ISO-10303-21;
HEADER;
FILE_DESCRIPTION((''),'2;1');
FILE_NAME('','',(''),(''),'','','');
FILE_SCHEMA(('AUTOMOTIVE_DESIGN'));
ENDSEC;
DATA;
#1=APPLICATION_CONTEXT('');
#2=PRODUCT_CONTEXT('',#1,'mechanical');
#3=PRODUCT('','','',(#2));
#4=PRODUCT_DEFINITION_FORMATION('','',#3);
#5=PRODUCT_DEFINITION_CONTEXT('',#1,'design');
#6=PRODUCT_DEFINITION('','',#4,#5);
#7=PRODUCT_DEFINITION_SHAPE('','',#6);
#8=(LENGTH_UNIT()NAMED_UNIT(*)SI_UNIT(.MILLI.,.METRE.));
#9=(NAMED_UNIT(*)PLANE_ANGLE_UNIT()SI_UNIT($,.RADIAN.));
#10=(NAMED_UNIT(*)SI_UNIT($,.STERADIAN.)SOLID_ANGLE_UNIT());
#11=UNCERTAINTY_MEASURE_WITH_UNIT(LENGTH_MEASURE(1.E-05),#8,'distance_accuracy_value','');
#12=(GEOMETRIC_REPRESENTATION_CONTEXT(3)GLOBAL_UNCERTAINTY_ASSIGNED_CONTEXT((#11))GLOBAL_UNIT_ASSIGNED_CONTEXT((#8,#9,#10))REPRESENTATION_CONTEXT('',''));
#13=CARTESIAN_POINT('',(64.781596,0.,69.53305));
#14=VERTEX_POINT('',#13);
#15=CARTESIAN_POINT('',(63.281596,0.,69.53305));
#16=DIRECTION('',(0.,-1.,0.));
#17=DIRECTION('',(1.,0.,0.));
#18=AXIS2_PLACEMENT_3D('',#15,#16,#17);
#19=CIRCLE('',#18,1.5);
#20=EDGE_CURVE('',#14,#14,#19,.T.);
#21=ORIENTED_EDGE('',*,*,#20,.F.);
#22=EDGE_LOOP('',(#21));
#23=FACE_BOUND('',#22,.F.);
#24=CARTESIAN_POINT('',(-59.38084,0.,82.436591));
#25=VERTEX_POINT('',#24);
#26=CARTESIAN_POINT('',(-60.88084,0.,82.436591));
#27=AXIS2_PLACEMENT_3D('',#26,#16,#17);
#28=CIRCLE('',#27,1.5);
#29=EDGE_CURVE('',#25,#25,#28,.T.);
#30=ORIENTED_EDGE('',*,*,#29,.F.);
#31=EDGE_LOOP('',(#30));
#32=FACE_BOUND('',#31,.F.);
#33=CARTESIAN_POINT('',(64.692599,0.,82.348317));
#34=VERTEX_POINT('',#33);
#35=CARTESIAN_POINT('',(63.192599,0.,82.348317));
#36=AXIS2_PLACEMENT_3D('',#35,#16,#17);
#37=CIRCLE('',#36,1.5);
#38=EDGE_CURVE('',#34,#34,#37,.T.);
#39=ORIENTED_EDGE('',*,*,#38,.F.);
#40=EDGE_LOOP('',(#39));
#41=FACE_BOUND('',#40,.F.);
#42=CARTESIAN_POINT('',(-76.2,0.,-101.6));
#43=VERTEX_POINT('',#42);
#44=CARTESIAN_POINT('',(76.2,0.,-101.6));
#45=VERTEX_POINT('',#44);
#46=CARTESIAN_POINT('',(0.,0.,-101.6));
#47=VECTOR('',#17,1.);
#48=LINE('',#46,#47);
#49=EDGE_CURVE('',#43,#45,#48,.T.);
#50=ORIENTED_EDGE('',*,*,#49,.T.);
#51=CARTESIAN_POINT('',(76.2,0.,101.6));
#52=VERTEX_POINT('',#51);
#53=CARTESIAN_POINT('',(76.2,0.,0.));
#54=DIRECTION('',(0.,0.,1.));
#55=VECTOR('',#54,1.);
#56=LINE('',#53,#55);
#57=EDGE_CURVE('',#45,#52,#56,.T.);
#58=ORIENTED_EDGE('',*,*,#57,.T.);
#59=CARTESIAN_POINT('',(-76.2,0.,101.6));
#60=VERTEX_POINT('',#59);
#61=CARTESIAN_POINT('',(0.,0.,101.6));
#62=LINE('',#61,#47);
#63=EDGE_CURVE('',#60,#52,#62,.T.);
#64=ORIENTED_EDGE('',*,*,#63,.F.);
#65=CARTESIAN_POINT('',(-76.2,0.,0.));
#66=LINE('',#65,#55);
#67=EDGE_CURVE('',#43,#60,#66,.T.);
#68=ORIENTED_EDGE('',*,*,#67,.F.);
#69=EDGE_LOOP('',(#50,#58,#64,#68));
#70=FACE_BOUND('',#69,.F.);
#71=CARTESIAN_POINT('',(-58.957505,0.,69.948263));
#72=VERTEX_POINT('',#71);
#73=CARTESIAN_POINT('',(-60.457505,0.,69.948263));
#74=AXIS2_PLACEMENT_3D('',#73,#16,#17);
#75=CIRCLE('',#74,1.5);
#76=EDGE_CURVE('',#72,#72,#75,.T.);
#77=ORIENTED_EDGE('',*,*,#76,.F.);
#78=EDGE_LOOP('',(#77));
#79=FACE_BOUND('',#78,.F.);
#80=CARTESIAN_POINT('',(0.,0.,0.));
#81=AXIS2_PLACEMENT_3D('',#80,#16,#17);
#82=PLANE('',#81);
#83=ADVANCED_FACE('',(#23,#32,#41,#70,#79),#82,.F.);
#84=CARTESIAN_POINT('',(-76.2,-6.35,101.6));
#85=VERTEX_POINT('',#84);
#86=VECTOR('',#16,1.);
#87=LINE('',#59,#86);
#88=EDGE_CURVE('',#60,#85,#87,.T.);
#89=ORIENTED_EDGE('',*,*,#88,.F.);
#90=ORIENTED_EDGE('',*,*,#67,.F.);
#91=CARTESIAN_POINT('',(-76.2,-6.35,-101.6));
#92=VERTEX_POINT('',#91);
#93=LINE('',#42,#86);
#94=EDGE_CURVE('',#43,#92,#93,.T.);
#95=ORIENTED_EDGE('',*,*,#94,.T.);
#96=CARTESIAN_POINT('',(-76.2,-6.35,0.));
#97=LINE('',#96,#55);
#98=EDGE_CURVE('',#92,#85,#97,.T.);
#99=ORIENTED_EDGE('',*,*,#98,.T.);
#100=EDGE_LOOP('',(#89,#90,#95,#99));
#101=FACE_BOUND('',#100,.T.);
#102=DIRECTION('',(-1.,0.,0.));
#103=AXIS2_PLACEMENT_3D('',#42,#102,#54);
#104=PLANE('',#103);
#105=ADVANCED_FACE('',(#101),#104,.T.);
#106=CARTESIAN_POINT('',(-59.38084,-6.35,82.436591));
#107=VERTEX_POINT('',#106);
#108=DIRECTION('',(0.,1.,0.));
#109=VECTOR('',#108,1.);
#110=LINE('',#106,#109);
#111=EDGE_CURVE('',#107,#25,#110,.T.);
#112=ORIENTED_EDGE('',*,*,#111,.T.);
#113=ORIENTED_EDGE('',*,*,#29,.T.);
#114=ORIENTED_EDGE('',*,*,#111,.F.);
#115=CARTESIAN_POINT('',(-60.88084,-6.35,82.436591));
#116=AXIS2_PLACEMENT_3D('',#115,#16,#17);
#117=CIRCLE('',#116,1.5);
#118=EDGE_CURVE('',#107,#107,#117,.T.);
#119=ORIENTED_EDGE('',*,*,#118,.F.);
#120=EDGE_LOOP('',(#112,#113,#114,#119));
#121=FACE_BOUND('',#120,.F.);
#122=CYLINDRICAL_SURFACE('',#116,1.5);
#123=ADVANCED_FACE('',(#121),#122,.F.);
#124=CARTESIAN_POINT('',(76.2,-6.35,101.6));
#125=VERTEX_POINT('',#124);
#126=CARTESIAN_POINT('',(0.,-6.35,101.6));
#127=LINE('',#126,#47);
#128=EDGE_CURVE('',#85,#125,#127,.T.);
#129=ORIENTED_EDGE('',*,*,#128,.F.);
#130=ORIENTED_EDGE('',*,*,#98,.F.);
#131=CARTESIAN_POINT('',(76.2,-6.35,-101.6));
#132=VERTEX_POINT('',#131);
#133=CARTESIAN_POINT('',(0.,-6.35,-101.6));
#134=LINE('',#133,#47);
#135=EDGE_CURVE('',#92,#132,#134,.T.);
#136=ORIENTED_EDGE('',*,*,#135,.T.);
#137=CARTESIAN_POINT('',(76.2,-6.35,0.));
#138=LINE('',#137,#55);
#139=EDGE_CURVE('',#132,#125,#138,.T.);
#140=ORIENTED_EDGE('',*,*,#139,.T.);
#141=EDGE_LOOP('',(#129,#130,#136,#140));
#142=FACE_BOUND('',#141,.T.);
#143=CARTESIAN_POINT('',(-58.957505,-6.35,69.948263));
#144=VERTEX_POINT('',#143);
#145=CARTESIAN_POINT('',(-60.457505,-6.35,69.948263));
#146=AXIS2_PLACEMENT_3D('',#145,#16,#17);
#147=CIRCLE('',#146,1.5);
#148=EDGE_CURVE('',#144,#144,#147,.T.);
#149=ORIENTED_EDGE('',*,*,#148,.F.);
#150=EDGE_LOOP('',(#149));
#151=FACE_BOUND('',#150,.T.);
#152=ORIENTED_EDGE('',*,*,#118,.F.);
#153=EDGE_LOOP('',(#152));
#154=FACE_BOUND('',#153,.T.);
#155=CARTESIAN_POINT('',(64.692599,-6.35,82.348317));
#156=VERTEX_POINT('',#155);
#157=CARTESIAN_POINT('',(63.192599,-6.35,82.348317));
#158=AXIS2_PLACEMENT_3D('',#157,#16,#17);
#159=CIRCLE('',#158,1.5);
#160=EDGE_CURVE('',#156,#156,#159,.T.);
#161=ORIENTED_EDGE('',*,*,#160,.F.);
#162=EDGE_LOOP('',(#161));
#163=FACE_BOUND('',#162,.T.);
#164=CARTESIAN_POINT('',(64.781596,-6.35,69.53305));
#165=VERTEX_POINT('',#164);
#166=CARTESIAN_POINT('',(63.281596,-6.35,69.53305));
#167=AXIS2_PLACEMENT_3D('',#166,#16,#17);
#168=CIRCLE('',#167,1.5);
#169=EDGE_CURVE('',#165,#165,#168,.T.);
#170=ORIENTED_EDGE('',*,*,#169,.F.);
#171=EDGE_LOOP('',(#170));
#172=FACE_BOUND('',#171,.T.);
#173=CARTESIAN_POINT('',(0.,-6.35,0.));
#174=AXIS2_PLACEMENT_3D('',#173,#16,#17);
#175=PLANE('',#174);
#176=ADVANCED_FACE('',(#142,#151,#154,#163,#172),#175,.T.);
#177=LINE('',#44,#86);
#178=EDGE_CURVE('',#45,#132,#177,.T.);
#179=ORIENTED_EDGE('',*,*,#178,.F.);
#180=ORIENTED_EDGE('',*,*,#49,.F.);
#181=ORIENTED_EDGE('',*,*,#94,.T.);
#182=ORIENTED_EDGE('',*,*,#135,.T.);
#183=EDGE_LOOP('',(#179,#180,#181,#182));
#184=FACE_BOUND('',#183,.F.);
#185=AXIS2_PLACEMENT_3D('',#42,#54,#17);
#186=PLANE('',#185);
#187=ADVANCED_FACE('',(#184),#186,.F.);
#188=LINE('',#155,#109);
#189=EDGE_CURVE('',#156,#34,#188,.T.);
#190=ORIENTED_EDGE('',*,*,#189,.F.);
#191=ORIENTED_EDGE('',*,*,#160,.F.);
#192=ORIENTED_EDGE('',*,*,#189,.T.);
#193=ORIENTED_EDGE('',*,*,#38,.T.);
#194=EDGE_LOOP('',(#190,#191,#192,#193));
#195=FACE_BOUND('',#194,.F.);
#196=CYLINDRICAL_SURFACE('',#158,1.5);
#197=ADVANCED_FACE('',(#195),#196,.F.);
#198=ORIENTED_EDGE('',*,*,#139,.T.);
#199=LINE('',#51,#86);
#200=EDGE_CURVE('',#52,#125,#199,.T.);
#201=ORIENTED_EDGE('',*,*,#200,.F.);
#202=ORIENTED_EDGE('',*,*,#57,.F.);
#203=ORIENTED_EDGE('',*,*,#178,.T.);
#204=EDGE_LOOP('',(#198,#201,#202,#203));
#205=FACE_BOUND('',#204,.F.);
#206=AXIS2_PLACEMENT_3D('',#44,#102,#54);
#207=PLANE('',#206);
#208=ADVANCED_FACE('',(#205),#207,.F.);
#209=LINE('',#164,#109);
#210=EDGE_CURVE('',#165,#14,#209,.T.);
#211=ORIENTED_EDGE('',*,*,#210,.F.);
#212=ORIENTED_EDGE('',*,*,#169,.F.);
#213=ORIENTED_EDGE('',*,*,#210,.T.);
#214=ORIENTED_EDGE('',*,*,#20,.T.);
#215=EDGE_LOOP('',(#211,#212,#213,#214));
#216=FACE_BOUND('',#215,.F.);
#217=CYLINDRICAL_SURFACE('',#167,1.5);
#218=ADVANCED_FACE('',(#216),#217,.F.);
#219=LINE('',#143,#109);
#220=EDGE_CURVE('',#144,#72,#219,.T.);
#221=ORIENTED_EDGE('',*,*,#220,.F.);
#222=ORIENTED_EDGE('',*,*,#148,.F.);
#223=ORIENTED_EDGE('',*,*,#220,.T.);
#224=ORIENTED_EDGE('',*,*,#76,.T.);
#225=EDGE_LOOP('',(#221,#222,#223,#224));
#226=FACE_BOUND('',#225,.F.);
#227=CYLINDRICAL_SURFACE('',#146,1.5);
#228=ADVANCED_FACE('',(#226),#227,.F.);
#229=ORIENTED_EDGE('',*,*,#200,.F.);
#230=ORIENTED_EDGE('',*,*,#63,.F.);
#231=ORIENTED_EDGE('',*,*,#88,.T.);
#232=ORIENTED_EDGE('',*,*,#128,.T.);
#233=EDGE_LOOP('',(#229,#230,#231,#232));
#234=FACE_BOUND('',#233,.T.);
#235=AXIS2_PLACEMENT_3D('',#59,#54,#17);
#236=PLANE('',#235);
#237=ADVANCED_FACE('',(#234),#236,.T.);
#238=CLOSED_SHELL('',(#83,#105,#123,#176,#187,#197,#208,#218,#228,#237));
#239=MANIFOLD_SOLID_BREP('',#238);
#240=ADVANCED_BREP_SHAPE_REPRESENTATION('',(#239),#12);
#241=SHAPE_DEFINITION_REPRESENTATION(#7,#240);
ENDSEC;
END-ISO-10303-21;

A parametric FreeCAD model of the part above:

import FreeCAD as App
import Part
import Sketcher

V = App.Vector
Q = App.Units.Quantity

doc = App.newDocument("Part")
params = doc.addObject("Spreadsheet::Sheet", "Params")
for row, (alias, value) in enumerate([
    ("sketch1_width", "6 in"),
    ("sketch1_height", "8 in"),
    ("pad1_length", "0.25 in"),
    ("pocket1_length", "0.25 in"),
    ("pocket2_length", "0.25 in"),
    ("pocket3_length", "0.25 in"),
    ("pocket4_length", "0.25 in"),
], start=1):
    params.set(f"A{row}", alias)
    params.set(f"B{row}", "=" + value)
    params.setAlias(f"B{row}", alias)

body = doc.addObject("PartDesign::Body", "Body")

sketch1 = body.newObject("Sketcher::SketchObject", "Sketch")
sketch1.AttachmentSupport = (doc.getObject("XZ_Plane"), [""])
sketch1.MapMode = "FlatFace"
sketch1.addGeometry([
    Part.LineSegment(V(-76.2, 101.6, 0), V(-76.2, -101.6, 0)),
    Part.LineSegment(V(-76.2, -101.6, 0), V(76.2, -101.6, 0)),
    Part.LineSegment(V(76.2, -101.6, 0), V(76.2, 101.6, 0)),
    Part.LineSegment(V(76.2, 101.6, 0), V(-76.2, 101.6, 0)),
], False)
sketch1.addConstraint([
    Sketcher.Constraint("Coincident", 0, 2, 1, 1),
    Sketcher.Constraint("Coincident", 1, 2, 2, 1),
    Sketcher.Constraint("Coincident", 2, 2, 3, 1),
    Sketcher.Constraint("Coincident", 3, 2, 0, 1),
    Sketcher.Constraint("Vertical", 0),
    Sketcher.Constraint("Horizontal", 1),
    Sketcher.Constraint("Vertical", 2),
    Sketcher.Constraint("Horizontal", 3),
    Sketcher.Constraint("Symmetric", 0, 2, 2, 2, -1, 1),
    Sketcher.Constraint("DistanceX", 1, 1, 1, 2, Q("6 in")),
    Sketcher.Constraint("DistanceY", 0, 2, 0, 1, Q("8 in")),
])
sketch1.setExpression("Constraints[9]", "Params.sketch1_width")
sketch1.setExpression("Constraints[10]", "Params.sketch1_height")
pad1 = body.newObject("PartDesign::Pad", "Pad")
pad1.Profile = sketch1
pad1.setExpression("Length", "Params.pad1_length")

sketch2 = body.newObject("Sketcher::SketchObject", "Sketch001")
sketch2.AttachmentSupport = (doc.getObject("XZ_Plane"), [""])
sketch2.MapMode = "FlatFace"
sketch2.AttachmentOffset = App.Placement(V(0, 0, 0.25 * 25.4), App.Rotation())
sketch2.addGeometry(Part.Circle(V(-60.88084, 82.436591, 0), V(0, 0, 1), 1.5), False)
sketch2.addConstraint([
    Sketcher.Constraint("Diameter", 0, Q("3 mm")),
    Sketcher.Constraint("DistanceX", 0, 3, -1, 1, Q("60.88084 mm")),
    Sketcher.Constraint("DistanceY", -1, 1, 0, 3, Q("82.436591 mm")),
])
pocket1 = body.newObject("PartDesign::Pocket", "Pocket")
pocket1.Profile = sketch2
pocket1.setExpression("Length", "Params.pocket1_length")

sketch3 = body.newObject("Sketcher::SketchObject", "Sketch002")
sketch3.AttachmentSupport = (doc.getObject("XZ_Plane"), [""])
sketch3.MapMode = "FlatFace"
sketch3.AttachmentOffset = App.Placement(V(0, 0, 0.25 * 25.4), App.Rotation())
sketch3.addGeometry(Part.Circle(V(-60.457505, 69.948263, 0), V(0, 0, 1), 1.5), False)
sketch3.addConstraint([
    Sketcher.Constraint("Diameter", 0, Q("3 mm")),
    Sketcher.Constraint("DistanceX", 0, 3, -1, 1, Q("60.457505 mm")),
    Sketcher.Constraint("DistanceY", -1, 1, 0, 3, Q("69.948263 mm")),
])
pocket2 = body.newObject("PartDesign::Pocket", "Pocket001")
pocket2.Profile = sketch3
pocket2.setExpression("Length", "Params.pocket2_length")

sketch4 = body.newObject("Sketcher::SketchObject", "Sketch003")
sketch4.AttachmentSupport = (doc.getObject("XZ_Plane"), [""])
sketch4.MapMode = "FlatFace"
sketch4.AttachmentOffset = App.Placement(V(0, 0, 0.25 * 25.4), App.Rotation())
sketch4.addGeometry(Part.Circle(V(63.192599, 82.348317, 0), V(0, 0, 1), 1.5), False)
sketch4.addConstraint([
    Sketcher.Constraint("Diameter", 0, Q("3 mm")),
    Sketcher.Constraint("DistanceX", -1, 1, 0, 3, Q("63.192599 mm")),
    Sketcher.Constraint("DistanceY", -1, 1, 0, 3, Q("82.348317 mm")),
])
pocket3 = body.newObject("PartDesign::Pocket", "Pocket002")
pocket3.Profile = sketch4
pocket3.setExpression("Length", "Params.pocket3_length")

sketch5 = body.newObject("Sketcher::SketchObject", "Sketch004")
sketch5.AttachmentSupport = (doc.getObject("XZ_Plane"), [""])
sketch5.MapMode = "FlatFace"
sketch5.AttachmentOffset = App.Placement(V(0, 0, 0.25 * 25.4), App.Rotation())
sketch5.addGeometry(Part.Circle(V(63.281596, 69.53305, 0), V(0, 0, 1), 1.5), False)
sketch5.addConstraint([
    Sketcher.Constraint("Diameter", 0, Q("3 mm")),
    Sketcher.Constraint("DistanceY", -1, 1, 0, 3, Q("69.53305 mm")),
    Sketcher.Constraint("DistanceX", -1, 1, 0, 3, Q("63.281596 mm")),
])
pocket4 = body.newObject("PartDesign::Pocket", "Pocket003")
pocket4.Profile = sketch5
pocket4.setExpression("Length", "Params.pocket4_length")

doc.recompute()
